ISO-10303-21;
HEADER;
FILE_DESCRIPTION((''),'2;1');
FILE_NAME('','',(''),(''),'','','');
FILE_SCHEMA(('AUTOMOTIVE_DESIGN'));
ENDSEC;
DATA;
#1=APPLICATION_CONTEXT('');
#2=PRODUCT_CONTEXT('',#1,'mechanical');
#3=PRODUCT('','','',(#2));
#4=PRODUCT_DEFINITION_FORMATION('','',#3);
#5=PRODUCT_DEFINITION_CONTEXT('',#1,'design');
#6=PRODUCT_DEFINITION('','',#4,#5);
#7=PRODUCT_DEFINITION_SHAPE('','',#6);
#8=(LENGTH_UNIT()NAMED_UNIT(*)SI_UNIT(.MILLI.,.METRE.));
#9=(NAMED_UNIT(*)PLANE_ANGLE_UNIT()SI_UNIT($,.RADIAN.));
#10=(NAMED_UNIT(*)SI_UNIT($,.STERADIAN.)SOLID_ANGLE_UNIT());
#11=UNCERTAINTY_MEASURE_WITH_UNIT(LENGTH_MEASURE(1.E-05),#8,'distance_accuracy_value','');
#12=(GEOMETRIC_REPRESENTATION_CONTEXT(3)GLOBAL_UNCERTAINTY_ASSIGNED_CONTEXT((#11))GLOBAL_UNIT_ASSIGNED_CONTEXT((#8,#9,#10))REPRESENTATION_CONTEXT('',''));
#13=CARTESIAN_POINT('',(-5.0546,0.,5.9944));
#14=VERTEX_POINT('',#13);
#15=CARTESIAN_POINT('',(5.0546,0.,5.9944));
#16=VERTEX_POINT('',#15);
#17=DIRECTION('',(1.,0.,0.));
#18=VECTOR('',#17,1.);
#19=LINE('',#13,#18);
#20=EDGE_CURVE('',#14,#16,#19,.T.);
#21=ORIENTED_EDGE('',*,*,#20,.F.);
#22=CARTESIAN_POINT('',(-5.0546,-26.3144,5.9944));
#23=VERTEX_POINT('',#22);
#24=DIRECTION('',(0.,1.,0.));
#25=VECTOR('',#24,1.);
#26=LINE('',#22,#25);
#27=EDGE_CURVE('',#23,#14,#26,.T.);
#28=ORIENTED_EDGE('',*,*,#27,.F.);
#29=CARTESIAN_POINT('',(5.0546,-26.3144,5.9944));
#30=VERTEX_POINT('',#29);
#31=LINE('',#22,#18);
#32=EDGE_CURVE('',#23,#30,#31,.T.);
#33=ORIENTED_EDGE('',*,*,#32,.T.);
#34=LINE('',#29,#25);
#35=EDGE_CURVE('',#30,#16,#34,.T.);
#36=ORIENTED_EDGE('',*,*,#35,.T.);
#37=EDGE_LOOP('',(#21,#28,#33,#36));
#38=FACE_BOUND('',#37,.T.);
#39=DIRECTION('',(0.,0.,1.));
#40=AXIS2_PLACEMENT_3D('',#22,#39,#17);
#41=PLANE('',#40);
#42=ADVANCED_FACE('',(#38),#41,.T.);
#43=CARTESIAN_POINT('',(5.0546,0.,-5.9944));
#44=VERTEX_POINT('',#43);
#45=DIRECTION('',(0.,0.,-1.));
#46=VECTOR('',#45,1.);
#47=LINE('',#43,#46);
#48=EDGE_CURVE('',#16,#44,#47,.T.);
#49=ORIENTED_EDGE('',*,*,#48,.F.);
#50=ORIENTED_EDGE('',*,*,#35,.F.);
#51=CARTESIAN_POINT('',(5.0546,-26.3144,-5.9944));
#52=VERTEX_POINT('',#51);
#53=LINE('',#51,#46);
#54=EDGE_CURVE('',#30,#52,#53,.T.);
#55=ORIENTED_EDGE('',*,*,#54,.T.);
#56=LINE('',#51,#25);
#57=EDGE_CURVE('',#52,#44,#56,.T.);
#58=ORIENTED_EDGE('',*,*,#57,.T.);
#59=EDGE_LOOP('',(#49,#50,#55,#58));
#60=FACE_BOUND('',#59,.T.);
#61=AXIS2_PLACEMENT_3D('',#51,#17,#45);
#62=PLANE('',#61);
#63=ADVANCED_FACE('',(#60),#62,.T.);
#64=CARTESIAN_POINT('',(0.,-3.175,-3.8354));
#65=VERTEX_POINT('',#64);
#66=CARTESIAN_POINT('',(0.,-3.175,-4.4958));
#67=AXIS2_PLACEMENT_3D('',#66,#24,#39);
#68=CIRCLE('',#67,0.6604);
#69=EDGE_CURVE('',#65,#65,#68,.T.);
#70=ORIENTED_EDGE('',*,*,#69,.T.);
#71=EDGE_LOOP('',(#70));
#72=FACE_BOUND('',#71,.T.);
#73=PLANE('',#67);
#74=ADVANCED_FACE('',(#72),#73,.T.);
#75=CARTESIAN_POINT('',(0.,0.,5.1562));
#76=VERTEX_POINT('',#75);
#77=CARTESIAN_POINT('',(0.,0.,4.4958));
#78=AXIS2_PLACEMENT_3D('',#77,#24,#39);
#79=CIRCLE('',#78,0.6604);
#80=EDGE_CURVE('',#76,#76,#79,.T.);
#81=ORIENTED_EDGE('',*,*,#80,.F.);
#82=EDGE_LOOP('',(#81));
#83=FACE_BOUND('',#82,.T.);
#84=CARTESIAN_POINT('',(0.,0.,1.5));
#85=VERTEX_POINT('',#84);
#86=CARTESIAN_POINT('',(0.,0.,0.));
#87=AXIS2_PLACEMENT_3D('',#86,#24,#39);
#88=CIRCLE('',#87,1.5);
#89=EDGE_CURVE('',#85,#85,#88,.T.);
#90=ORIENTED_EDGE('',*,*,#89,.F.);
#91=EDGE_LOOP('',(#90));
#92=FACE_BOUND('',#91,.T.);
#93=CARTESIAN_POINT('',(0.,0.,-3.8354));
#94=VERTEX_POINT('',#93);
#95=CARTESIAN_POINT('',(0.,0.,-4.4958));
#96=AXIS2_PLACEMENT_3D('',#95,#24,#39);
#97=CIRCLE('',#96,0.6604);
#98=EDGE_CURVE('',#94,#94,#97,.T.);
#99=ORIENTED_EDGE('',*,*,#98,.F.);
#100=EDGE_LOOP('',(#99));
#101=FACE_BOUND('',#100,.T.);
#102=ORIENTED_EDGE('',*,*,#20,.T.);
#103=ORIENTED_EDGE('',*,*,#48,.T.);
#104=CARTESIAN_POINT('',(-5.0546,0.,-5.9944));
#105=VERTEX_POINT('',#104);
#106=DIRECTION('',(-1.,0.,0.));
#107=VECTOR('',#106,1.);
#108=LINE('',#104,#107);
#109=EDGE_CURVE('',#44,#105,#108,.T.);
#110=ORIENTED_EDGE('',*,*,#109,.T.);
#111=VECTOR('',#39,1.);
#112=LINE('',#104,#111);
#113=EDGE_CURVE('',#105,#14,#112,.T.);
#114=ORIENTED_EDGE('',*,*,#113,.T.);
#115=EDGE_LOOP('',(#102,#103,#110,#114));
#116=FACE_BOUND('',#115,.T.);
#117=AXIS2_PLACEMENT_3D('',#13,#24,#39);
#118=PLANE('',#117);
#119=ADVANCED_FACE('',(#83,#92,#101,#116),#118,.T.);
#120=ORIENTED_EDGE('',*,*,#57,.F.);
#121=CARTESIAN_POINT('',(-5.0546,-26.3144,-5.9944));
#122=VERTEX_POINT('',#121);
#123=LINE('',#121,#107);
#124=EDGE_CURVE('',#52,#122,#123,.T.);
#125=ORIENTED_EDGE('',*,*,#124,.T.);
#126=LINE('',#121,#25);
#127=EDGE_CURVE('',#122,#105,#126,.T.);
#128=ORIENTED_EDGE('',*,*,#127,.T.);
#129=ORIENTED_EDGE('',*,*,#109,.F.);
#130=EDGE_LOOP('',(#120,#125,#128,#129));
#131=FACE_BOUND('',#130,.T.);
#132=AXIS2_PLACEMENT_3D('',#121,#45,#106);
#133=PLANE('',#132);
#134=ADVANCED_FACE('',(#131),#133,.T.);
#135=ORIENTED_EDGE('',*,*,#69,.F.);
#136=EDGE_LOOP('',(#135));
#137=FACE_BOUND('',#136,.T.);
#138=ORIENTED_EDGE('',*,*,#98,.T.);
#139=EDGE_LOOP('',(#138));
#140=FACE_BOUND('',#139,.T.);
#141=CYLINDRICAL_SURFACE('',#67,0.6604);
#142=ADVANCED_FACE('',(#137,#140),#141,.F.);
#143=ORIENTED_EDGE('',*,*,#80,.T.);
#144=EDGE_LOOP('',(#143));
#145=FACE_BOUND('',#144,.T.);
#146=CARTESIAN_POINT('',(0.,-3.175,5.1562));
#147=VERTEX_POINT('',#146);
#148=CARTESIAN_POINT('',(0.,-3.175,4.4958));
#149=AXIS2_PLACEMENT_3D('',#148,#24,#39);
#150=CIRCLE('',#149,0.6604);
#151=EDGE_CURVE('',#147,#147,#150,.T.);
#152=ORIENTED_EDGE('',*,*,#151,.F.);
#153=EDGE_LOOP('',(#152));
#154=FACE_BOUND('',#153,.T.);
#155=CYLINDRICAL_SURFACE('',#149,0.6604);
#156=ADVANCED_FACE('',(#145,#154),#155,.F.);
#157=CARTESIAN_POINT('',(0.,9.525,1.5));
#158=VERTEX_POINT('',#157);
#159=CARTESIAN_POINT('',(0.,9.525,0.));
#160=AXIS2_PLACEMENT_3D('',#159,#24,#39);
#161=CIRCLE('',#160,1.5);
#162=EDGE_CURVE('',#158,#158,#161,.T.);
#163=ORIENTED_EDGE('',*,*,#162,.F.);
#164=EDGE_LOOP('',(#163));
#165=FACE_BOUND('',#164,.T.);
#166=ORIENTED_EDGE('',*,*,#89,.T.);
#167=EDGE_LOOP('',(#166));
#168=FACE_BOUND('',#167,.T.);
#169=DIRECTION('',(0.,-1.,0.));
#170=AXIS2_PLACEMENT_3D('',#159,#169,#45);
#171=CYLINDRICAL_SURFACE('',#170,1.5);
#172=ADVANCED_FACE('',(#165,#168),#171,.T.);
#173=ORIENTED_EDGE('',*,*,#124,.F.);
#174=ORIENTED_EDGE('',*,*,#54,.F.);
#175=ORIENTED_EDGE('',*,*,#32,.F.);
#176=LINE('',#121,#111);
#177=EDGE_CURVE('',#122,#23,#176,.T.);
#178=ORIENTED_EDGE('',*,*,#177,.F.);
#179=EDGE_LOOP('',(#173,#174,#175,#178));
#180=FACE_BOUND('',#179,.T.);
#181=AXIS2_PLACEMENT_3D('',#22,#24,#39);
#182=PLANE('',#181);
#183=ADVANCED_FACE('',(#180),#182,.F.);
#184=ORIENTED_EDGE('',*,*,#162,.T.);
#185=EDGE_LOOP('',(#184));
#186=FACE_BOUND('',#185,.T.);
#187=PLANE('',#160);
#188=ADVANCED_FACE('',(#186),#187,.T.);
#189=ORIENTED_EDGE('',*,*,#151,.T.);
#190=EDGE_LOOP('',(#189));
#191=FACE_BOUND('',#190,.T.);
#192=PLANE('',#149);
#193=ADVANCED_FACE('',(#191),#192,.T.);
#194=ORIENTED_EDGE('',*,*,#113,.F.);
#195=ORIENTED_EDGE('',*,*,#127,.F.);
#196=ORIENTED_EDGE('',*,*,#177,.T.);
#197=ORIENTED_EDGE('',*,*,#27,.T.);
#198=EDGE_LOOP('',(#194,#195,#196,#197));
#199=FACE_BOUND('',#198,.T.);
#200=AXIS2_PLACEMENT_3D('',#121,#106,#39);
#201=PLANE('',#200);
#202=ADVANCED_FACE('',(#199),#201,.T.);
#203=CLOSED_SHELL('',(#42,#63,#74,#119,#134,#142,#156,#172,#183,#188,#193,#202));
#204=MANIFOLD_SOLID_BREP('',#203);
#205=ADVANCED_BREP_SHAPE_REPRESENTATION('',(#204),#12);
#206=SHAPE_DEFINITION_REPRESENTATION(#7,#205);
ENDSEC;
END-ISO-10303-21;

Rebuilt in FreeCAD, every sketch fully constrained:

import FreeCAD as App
import Part
import Sketcher

V = App.Vector
Q = App.Units.Quantity

doc = App.newDocument("Part")
body = doc.addObject("PartDesign::Body", "Body")

# Sketch on XZ plane
sketch1 = body.newObject("Sketcher::SketchObject", "Sketch")
sketch1.AttachmentSupport = (doc.getObject("XZ_Plane"), [""])
sketch1.MapMode = "FlatFace"
sketch1.addGeometry([
    Part.LineSegment(V(-5, -6, 0), V(-5, 6, 0)),
    Part.LineSegment(V(-5, 6, 0), V(5, 6, 0)),
    Part.LineSegment(V(5, 6, 0), V(5, -6, 0)),
    Part.LineSegment(V(5, -6, 0), V(-5, -6, 0)),
], False)
sketch1.addConstraint([
    Sketcher.Constraint("Coincident", 0, 2, 1, 1),
    Sketcher.Constraint("Coincident", 1, 2, 2, 1),
    Sketcher.Constraint("Coincident", 2, 2, 3, 1),
    Sketcher.Constraint("Coincident", 3, 2, 0, 1),
    Sketcher.Constraint("Vertical", 0),
    Sketcher.Constraint("Horizontal", 1),
    Sketcher.Constraint("Vertical", 2),
    Sketcher.Constraint("Horizontal", 3),
    Sketcher.Constraint("Symmetric", 0, 2, 2, 2, -1, 1),
    Sketcher.Constraint("DistanceX", 1, 1, 1, 2, Q("0.398 in")),
    Sketcher.Constraint("DistanceY", 0, 1, 0, 2, Q("0.472 in")),
])
pad1 = body.newObject("PartDesign::Pad", "Pad")
pad1.Profile = sketch1
pad1.Length = Q("1.036 in")

# Sketch on XZ plane
sketch2 = body.newObject("Sketcher::SketchObject", "Sketch001")
sketch2.AttachmentSupport = (doc.getObject("XZ_Plane"), [""])
sketch2.MapMode = "FlatFace"
sketch2.addGeometry(Part.Circle(V(0, 0, 0), V(0, 0, 1), 1.5), False)
sketch2.addConstraint([
    Sketcher.Constraint("Coincident", 0, 3, -1, 1),
    Sketcher.Constraint("Diameter", 0, 3.0),
])
pad2 = body.newObject("PartDesign::Pad", "Pad001")
pad2.Profile = sketch2
pad2.Length = Q("0.375 in")
pad2.Reversed = True

# Sketch on XZ plane
sketch3 = body.newObject("Sketcher::SketchObject", "Sketch002")
sketch3.AttachmentSupport = (doc.getObject("XZ_Plane"), [""])
sketch3.MapMode = "FlatFace"
sketch3.addGeometry([
    Part.Circle(V(0, 4.5, 0), V(0, 0, 1), 0.7),
    Part.Circle(V(0, -4.5, 0), V(0, 0, 1), 0.7),
], False)
sketch3.addConstraint([
    Sketcher.Constraint("Equal", 0, 1),
    Sketcher.Constraint("Symmetric", 0, 3, 1, 3, -1, 1),
    Sketcher.Constraint("PointOnObject", 0, 3, -2),
    Sketcher.Constraint("Diameter", 0, Q("0.052 in")),
    Sketcher.Constraint("DistanceY", -1, 1, 0, 3, Q("0.177 in")),
])
pocket1 = body.newObject("PartDesign::Pocket", "Pocket")
pocket1.Profile = sketch3
pocket1.Length = Q("0.125 in")
pocket1.Reversed = True

doc.recompute()
